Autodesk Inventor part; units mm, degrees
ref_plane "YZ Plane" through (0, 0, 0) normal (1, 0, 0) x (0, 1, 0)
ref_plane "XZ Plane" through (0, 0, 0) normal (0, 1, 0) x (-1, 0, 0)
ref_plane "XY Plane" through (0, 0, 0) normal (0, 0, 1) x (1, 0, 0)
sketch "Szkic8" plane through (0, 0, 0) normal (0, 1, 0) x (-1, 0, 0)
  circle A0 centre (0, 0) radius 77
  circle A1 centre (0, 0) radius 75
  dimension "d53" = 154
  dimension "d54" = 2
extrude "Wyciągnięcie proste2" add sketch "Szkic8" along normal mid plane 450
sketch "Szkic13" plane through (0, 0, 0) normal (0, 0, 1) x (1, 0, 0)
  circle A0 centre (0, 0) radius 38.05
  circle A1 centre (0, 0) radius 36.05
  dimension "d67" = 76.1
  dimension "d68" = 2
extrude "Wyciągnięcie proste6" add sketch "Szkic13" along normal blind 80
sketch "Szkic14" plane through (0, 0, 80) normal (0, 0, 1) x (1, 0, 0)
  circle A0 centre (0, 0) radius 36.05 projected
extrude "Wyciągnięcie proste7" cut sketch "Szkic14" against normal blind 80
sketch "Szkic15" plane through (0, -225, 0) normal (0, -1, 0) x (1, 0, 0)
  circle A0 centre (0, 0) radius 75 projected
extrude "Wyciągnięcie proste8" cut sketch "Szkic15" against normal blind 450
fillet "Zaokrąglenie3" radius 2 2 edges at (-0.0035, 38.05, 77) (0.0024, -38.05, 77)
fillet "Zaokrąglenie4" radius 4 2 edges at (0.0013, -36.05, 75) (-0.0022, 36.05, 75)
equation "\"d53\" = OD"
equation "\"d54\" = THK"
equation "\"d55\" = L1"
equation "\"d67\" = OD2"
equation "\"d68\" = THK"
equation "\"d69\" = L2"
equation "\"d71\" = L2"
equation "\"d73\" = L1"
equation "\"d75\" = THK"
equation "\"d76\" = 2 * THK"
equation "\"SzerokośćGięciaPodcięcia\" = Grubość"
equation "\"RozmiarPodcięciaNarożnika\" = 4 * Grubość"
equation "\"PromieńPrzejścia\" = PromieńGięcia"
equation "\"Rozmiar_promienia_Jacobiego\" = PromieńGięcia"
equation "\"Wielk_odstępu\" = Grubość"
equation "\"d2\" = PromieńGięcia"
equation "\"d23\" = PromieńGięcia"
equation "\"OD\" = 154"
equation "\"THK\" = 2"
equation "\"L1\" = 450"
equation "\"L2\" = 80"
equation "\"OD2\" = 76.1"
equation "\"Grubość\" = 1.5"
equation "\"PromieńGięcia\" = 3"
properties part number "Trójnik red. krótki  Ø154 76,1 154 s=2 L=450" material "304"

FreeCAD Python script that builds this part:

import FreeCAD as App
import Part
import Sketcher


def edges_at(feature, points):
    """Names of the edges that pass closest to the given points."""
    edges = feature.Shape.Edges
    near = lambda p: min(range(len(edges)), key=lambda i: edges[i].distToShape(Part.Vertex(*p))[0])
    return sorted({f"Edge{near(p) + 1}" for p in points})

doc = App.newDocument("Part")
body = doc.addObject("PartDesign::Body", "Body")

# Sketch on XZ plane
sketch1 = doc.addObject("Sketcher::SketchObject", "Sketch")
body.addObject(sketch1)
sketch1.AttachmentSupport = (doc.XZ_Plane, [""])
sketch1.MapMode = "FlatFace"
sketch1.addGeometry(Part.Circle(App.Vector(0, 0, 0), App.Vector(0, 0, 1), 77), False)
sketch1.addGeometry(Part.Circle(App.Vector(0, 0, 0), App.Vector(0, 0, 1), 75), False)
sketch1.addConstraint(Sketcher.Constraint("Coincident", 0, 3, -1, 1))
sketch1.addConstraint(Sketcher.Constraint("Coincident", 1, 3, -1, 1))
sketch1.addConstraint(Sketcher.Constraint("Diameter", 0, 154.0))
sketch1.addConstraint(Sketcher.Constraint("Diameter", 1, 150.0))
pad1 = doc.addObject("PartDesign::Pad", "Pad")
body.addObject(pad1)
pad1.Profile = sketch1
pad1.Length = 450
pad1.Midplane = True

# Sketch on XY plane
sketch2 = doc.addObject("Sketcher::SketchObject", "Sketch001")
body.addObject(sketch2)
sketch2.AttachmentSupport = (doc.XY_Plane, [""])
sketch2.MapMode = "FlatFace"
sketch2.addGeometry(Part.Circle(App.Vector(0, 0, 0), App.Vector(0, 0, 1), 38.05), False)
sketch2.addGeometry(Part.Circle(App.Vector(0, 0, 0), App.Vector(0, 0, 1), 36.05), False)
sketch2.addConstraint(Sketcher.Constraint("Coincident", 0, 3, -1, 1))
sketch2.addConstraint(Sketcher.Constraint("Coincident", 1, 3, -1, 1))
sketch2.addConstraint(Sketcher.Constraint("Diameter", 0, 76.1))
sketch2.addConstraint(Sketcher.Constraint("Diameter", 1, 72.1))
pad2 = doc.addObject("PartDesign::Pad", "Pad001")
body.addObject(pad2)
pad2.Profile = sketch2
pad2.Length = 80

# Sketch on XY plane
sketch3 = doc.addObject("Sketcher::SketchObject", "Sketch002")
body.addObject(sketch3)
sketch3.AttachmentSupport = (doc.XY_Plane, [""])
sketch3.MapMode = "FlatFace"
sketch3.AttachmentOffset = App.Placement(App.Vector(0, 0, 80), App.Rotation())
sketch3.addGeometry(Part.Circle(App.Vector(0, 0, 0), App.Vector(0, 0, 1), 36.05), False)
sketch3.addConstraint(Sketcher.Constraint("Coincident", 0, 3, -1, 1))
sketch3.addConstraint(Sketcher.Constraint("Diameter", 0, 72.1))
pocket1 = doc.addObject("PartDesign::Pocket", "Pocket")
body.addObject(pocket1)
pocket1.Profile = sketch3
pocket1.Length = 80

# Sketch on XZ plane
sketch4 = doc.addObject("Sketcher::SketchObject", "Sketch003")
body.addObject(sketch4)
sketch4.AttachmentSupport = (doc.XZ_Plane, [""])
sketch4.MapMode = "FlatFace"
sketch4.AttachmentOffset = App.Placement(App.Vector(0, 0, 225), App.Rotation())
sketch4.addGeometry(Part.Circle(App.Vector(0, 0, 0), App.Vector(0, 0, 1), 75), False)
sketch4.addConstraint(Sketcher.Constraint("Coincident", 0, 3, -1, 1))
sketch4.addConstraint(Sketcher.Constraint("Diameter", 0, 150.0))
pocket2 = doc.addObject("PartDesign::Pocket", "Pocket001")
body.addObject(pocket2)
pocket2.Profile = sketch4
pocket2.Length = 450
doc.recompute()

fillet = doc.addObject("PartDesign::Fillet", "Fillet")
body.addObject(fillet)
fillet.Base = (pocket2, edges_at(pocket2, [(-0.004, 38.05, 77), (0.002, -38.05, 77)]))
fillet.Radius = 2
doc.recompute()

fillet2 = doc.addObject("PartDesign::Fillet", "Fillet001")
body.addObject(fillet2)
fillet2.Base = (fillet, edges_at(fillet, [(0.001, -36.05, 75), (-0.002, 36.05, 75)]))
fillet2.Radius = 4

doc.recompute()
